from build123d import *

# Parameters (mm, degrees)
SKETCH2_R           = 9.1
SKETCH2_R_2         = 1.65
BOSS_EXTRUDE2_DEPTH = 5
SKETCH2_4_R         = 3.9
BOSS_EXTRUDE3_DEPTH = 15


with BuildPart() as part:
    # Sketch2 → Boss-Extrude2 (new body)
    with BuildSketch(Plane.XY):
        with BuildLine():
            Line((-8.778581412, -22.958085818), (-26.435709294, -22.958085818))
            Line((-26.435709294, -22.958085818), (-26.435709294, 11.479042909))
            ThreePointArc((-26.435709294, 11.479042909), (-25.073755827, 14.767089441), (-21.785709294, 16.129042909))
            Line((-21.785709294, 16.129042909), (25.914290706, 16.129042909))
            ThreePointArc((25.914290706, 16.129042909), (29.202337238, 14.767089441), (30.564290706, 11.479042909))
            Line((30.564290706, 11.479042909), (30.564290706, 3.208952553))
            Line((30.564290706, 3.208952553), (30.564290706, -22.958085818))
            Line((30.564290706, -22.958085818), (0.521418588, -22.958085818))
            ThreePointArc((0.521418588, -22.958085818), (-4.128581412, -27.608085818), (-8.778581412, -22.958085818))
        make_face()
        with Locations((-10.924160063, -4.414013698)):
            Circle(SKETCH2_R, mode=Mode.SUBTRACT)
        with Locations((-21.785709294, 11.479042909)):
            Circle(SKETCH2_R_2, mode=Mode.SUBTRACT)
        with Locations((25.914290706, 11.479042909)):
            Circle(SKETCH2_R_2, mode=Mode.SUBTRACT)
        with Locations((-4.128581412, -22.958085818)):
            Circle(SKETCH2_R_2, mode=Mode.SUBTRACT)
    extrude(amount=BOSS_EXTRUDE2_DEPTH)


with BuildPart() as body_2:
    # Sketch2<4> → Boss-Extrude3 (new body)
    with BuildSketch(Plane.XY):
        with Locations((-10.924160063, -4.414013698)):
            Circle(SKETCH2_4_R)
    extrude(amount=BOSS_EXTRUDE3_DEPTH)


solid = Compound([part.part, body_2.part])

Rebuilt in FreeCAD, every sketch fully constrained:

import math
import FreeCAD as App
import Part
import Sketcher
from FreeCAD import Vector

doc = App.newDocument("Part")
body = doc.addObject("PartDesign::Body", "Body")

# Sketch on XY plane
sketch1 = doc.addObject("Sketcher::SketchObject", "Sketch")
body.addObject(sketch1)
sketch1.AttachmentSupport = (doc.XY_Plane, [""])
sketch1.MapMode = "FlatFace"
sketch1.addGeometry([
    Part.LineSegment(Vector(-26.4, -23, 0), Vector(-8.8, -23, 0)),  # 0
    Part.ArcOfCircle(Part.Circle(Vector(-4.1, -23, 0), Vector(0, 0, 1), 4.7), math.radians(180), math.radians(360)),  # 1
    Part.LineSegment(Vector(0.5, -23, 0), Vector(30.6, -23, 0)),  # 2
    Part.LineSegment(Vector(30.6, -23, 0), Vector(30.6, 11.5, 0)),  # 3
    Part.ArcOfCircle(Part.Circle(Vector(25.9, 11.5, 0), Vector(0, 0, 1), 4.7), math.radians(0), math.radians(90)),  # 4
    Part.LineSegment(Vector(25.9, 16.1, 0), Vector(-21.8, 16.1, 0)),  # 5
    Part.ArcOfCircle(Part.Circle(Vector(-21.8, 11.5, 0), Vector(0, 0, 1), 4.7), math.radians(90), math.radians(180)),  # 6
    Part.LineSegment(Vector(-26.4, 11.5, 0), Vector(-26.4, -23, 0)),  # 7
    Part.Circle(Vector(-4.1, -23, 0), Vector(0, 0, 1), 1.6),  # 8
    Part.Circle(Vector(25.9, 11.5, 0), Vector(0, 0, 1), 1.6),  # 9
    Part.Circle(Vector(-10.9, -4.4, 0), Vector(0, 0, 1), 9.1),  # 10
    Part.Circle(Vector(-21.8, 11.5, 0), Vector(0, 0, 1), 1.6),  # 11
], False)
sketch1.addConstraint([
    Sketcher.Constraint("Coincident", 0, 2, 1, 1),
    Sketcher.Constraint("Coincident", 1, 2, 2, 1),
    Sketcher.Constraint("Coincident", 2, 2, 3, 1),
    Sketcher.Constraint("Tangent", 3, 2, 4, 1),
    Sketcher.Constraint("Tangent", 4, 2, 5, 1),
    Sketcher.Constraint("Tangent", 5, 2, 6, 1),
    Sketcher.Constraint("Tangent", 6, 2, 7, 1),
    Sketcher.Constraint("Coincident", 7, 2, 0, 1),
    Sketcher.Constraint("Horizontal", 0),
    Sketcher.Constraint("Horizontal", 2),
    Sketcher.Constraint("Vertical", 3),
    Sketcher.Constraint("Horizontal", 5),
    Sketcher.Constraint("Vertical", 7),
    Sketcher.Constraint("Coincident", 8, 3, 1, 3),
    Sketcher.Constraint("Coincident", 9, 3, 4, 3),
    Sketcher.Constraint("Coincident", 11, 3, 6, 3),
    Sketcher.Constraint("Equal", 1, 4),
    Sketcher.Constraint("Equal", 4, 6),
    Sketcher.Constraint("Equal", 8, 9),
    Sketcher.Constraint("Equal", 9, 11),
    Sketcher.Constraint("Horizontal", 8, 3, 0, 2),
    Sketcher.Constraint("Horizontal", 0, 2, 1, 2),
    Sketcher.Constraint("Diameter", 8, 3.3),
    Sketcher.Constraint("Diameter", 10, 18.2),
    Sketcher.Constraint("Radius", 1, 4.65),
    Sketcher.Constraint("DistanceX", 5, 2, 5, 1, 47.7),
    Sketcher.Constraint("DistanceY", 3, 1, 3, 2, 34.437129),
    Sketcher.Constraint("DistanceX", 0, 1, 0, 2, 17.657128),
    Sketcher.Constraint("DistanceX", 1, 3, -1, 1, 4.128581),
    Sketcher.Constraint("DistanceX", 10, 3, -1, 1, 10.92416),
    Sketcher.Constraint("DistanceY", 1, 3, -1, 1, 22.958086),
    Sketcher.Constraint("DistanceY", 10, 3, -1, 1, 4.414014),
])
pad1 = doc.addObject("PartDesign::Pad", "Pad")
body.addObject(pad1)
pad1.Profile = sketch1
pad1.Length = 5
body2 = doc.addObject("PartDesign::Body", "Body001")

# Sketch on XY plane
sketch2 = doc.addObject("Sketcher::SketchObject", "Sketch001")
body2.addObject(sketch2)
sketch2.AttachmentSupport = (doc.getObject("XY_Plane001"), [""])
sketch2.MapMode = "FlatFace"
sketch2.addGeometry(Part.Circle(Vector(-10.9, -4.4, 0), Vector(0, 0, 1), 3.9), False)
sketch2.addConstraint([
    Sketcher.Constraint("Diameter", 0, 7.8),
    Sketcher.Constraint("DistanceX", 0, 3, -1, 1, 10.92416),
    Sketcher.Constraint("DistanceY", 0, 3, -1, 1, 4.414014),
])
pad2 = doc.addObject("PartDesign::Pad", "Pad001")
body2.addObject(pad2)
pad2.Profile = sketch2
pad2.Length = 15

doc.recompute()
